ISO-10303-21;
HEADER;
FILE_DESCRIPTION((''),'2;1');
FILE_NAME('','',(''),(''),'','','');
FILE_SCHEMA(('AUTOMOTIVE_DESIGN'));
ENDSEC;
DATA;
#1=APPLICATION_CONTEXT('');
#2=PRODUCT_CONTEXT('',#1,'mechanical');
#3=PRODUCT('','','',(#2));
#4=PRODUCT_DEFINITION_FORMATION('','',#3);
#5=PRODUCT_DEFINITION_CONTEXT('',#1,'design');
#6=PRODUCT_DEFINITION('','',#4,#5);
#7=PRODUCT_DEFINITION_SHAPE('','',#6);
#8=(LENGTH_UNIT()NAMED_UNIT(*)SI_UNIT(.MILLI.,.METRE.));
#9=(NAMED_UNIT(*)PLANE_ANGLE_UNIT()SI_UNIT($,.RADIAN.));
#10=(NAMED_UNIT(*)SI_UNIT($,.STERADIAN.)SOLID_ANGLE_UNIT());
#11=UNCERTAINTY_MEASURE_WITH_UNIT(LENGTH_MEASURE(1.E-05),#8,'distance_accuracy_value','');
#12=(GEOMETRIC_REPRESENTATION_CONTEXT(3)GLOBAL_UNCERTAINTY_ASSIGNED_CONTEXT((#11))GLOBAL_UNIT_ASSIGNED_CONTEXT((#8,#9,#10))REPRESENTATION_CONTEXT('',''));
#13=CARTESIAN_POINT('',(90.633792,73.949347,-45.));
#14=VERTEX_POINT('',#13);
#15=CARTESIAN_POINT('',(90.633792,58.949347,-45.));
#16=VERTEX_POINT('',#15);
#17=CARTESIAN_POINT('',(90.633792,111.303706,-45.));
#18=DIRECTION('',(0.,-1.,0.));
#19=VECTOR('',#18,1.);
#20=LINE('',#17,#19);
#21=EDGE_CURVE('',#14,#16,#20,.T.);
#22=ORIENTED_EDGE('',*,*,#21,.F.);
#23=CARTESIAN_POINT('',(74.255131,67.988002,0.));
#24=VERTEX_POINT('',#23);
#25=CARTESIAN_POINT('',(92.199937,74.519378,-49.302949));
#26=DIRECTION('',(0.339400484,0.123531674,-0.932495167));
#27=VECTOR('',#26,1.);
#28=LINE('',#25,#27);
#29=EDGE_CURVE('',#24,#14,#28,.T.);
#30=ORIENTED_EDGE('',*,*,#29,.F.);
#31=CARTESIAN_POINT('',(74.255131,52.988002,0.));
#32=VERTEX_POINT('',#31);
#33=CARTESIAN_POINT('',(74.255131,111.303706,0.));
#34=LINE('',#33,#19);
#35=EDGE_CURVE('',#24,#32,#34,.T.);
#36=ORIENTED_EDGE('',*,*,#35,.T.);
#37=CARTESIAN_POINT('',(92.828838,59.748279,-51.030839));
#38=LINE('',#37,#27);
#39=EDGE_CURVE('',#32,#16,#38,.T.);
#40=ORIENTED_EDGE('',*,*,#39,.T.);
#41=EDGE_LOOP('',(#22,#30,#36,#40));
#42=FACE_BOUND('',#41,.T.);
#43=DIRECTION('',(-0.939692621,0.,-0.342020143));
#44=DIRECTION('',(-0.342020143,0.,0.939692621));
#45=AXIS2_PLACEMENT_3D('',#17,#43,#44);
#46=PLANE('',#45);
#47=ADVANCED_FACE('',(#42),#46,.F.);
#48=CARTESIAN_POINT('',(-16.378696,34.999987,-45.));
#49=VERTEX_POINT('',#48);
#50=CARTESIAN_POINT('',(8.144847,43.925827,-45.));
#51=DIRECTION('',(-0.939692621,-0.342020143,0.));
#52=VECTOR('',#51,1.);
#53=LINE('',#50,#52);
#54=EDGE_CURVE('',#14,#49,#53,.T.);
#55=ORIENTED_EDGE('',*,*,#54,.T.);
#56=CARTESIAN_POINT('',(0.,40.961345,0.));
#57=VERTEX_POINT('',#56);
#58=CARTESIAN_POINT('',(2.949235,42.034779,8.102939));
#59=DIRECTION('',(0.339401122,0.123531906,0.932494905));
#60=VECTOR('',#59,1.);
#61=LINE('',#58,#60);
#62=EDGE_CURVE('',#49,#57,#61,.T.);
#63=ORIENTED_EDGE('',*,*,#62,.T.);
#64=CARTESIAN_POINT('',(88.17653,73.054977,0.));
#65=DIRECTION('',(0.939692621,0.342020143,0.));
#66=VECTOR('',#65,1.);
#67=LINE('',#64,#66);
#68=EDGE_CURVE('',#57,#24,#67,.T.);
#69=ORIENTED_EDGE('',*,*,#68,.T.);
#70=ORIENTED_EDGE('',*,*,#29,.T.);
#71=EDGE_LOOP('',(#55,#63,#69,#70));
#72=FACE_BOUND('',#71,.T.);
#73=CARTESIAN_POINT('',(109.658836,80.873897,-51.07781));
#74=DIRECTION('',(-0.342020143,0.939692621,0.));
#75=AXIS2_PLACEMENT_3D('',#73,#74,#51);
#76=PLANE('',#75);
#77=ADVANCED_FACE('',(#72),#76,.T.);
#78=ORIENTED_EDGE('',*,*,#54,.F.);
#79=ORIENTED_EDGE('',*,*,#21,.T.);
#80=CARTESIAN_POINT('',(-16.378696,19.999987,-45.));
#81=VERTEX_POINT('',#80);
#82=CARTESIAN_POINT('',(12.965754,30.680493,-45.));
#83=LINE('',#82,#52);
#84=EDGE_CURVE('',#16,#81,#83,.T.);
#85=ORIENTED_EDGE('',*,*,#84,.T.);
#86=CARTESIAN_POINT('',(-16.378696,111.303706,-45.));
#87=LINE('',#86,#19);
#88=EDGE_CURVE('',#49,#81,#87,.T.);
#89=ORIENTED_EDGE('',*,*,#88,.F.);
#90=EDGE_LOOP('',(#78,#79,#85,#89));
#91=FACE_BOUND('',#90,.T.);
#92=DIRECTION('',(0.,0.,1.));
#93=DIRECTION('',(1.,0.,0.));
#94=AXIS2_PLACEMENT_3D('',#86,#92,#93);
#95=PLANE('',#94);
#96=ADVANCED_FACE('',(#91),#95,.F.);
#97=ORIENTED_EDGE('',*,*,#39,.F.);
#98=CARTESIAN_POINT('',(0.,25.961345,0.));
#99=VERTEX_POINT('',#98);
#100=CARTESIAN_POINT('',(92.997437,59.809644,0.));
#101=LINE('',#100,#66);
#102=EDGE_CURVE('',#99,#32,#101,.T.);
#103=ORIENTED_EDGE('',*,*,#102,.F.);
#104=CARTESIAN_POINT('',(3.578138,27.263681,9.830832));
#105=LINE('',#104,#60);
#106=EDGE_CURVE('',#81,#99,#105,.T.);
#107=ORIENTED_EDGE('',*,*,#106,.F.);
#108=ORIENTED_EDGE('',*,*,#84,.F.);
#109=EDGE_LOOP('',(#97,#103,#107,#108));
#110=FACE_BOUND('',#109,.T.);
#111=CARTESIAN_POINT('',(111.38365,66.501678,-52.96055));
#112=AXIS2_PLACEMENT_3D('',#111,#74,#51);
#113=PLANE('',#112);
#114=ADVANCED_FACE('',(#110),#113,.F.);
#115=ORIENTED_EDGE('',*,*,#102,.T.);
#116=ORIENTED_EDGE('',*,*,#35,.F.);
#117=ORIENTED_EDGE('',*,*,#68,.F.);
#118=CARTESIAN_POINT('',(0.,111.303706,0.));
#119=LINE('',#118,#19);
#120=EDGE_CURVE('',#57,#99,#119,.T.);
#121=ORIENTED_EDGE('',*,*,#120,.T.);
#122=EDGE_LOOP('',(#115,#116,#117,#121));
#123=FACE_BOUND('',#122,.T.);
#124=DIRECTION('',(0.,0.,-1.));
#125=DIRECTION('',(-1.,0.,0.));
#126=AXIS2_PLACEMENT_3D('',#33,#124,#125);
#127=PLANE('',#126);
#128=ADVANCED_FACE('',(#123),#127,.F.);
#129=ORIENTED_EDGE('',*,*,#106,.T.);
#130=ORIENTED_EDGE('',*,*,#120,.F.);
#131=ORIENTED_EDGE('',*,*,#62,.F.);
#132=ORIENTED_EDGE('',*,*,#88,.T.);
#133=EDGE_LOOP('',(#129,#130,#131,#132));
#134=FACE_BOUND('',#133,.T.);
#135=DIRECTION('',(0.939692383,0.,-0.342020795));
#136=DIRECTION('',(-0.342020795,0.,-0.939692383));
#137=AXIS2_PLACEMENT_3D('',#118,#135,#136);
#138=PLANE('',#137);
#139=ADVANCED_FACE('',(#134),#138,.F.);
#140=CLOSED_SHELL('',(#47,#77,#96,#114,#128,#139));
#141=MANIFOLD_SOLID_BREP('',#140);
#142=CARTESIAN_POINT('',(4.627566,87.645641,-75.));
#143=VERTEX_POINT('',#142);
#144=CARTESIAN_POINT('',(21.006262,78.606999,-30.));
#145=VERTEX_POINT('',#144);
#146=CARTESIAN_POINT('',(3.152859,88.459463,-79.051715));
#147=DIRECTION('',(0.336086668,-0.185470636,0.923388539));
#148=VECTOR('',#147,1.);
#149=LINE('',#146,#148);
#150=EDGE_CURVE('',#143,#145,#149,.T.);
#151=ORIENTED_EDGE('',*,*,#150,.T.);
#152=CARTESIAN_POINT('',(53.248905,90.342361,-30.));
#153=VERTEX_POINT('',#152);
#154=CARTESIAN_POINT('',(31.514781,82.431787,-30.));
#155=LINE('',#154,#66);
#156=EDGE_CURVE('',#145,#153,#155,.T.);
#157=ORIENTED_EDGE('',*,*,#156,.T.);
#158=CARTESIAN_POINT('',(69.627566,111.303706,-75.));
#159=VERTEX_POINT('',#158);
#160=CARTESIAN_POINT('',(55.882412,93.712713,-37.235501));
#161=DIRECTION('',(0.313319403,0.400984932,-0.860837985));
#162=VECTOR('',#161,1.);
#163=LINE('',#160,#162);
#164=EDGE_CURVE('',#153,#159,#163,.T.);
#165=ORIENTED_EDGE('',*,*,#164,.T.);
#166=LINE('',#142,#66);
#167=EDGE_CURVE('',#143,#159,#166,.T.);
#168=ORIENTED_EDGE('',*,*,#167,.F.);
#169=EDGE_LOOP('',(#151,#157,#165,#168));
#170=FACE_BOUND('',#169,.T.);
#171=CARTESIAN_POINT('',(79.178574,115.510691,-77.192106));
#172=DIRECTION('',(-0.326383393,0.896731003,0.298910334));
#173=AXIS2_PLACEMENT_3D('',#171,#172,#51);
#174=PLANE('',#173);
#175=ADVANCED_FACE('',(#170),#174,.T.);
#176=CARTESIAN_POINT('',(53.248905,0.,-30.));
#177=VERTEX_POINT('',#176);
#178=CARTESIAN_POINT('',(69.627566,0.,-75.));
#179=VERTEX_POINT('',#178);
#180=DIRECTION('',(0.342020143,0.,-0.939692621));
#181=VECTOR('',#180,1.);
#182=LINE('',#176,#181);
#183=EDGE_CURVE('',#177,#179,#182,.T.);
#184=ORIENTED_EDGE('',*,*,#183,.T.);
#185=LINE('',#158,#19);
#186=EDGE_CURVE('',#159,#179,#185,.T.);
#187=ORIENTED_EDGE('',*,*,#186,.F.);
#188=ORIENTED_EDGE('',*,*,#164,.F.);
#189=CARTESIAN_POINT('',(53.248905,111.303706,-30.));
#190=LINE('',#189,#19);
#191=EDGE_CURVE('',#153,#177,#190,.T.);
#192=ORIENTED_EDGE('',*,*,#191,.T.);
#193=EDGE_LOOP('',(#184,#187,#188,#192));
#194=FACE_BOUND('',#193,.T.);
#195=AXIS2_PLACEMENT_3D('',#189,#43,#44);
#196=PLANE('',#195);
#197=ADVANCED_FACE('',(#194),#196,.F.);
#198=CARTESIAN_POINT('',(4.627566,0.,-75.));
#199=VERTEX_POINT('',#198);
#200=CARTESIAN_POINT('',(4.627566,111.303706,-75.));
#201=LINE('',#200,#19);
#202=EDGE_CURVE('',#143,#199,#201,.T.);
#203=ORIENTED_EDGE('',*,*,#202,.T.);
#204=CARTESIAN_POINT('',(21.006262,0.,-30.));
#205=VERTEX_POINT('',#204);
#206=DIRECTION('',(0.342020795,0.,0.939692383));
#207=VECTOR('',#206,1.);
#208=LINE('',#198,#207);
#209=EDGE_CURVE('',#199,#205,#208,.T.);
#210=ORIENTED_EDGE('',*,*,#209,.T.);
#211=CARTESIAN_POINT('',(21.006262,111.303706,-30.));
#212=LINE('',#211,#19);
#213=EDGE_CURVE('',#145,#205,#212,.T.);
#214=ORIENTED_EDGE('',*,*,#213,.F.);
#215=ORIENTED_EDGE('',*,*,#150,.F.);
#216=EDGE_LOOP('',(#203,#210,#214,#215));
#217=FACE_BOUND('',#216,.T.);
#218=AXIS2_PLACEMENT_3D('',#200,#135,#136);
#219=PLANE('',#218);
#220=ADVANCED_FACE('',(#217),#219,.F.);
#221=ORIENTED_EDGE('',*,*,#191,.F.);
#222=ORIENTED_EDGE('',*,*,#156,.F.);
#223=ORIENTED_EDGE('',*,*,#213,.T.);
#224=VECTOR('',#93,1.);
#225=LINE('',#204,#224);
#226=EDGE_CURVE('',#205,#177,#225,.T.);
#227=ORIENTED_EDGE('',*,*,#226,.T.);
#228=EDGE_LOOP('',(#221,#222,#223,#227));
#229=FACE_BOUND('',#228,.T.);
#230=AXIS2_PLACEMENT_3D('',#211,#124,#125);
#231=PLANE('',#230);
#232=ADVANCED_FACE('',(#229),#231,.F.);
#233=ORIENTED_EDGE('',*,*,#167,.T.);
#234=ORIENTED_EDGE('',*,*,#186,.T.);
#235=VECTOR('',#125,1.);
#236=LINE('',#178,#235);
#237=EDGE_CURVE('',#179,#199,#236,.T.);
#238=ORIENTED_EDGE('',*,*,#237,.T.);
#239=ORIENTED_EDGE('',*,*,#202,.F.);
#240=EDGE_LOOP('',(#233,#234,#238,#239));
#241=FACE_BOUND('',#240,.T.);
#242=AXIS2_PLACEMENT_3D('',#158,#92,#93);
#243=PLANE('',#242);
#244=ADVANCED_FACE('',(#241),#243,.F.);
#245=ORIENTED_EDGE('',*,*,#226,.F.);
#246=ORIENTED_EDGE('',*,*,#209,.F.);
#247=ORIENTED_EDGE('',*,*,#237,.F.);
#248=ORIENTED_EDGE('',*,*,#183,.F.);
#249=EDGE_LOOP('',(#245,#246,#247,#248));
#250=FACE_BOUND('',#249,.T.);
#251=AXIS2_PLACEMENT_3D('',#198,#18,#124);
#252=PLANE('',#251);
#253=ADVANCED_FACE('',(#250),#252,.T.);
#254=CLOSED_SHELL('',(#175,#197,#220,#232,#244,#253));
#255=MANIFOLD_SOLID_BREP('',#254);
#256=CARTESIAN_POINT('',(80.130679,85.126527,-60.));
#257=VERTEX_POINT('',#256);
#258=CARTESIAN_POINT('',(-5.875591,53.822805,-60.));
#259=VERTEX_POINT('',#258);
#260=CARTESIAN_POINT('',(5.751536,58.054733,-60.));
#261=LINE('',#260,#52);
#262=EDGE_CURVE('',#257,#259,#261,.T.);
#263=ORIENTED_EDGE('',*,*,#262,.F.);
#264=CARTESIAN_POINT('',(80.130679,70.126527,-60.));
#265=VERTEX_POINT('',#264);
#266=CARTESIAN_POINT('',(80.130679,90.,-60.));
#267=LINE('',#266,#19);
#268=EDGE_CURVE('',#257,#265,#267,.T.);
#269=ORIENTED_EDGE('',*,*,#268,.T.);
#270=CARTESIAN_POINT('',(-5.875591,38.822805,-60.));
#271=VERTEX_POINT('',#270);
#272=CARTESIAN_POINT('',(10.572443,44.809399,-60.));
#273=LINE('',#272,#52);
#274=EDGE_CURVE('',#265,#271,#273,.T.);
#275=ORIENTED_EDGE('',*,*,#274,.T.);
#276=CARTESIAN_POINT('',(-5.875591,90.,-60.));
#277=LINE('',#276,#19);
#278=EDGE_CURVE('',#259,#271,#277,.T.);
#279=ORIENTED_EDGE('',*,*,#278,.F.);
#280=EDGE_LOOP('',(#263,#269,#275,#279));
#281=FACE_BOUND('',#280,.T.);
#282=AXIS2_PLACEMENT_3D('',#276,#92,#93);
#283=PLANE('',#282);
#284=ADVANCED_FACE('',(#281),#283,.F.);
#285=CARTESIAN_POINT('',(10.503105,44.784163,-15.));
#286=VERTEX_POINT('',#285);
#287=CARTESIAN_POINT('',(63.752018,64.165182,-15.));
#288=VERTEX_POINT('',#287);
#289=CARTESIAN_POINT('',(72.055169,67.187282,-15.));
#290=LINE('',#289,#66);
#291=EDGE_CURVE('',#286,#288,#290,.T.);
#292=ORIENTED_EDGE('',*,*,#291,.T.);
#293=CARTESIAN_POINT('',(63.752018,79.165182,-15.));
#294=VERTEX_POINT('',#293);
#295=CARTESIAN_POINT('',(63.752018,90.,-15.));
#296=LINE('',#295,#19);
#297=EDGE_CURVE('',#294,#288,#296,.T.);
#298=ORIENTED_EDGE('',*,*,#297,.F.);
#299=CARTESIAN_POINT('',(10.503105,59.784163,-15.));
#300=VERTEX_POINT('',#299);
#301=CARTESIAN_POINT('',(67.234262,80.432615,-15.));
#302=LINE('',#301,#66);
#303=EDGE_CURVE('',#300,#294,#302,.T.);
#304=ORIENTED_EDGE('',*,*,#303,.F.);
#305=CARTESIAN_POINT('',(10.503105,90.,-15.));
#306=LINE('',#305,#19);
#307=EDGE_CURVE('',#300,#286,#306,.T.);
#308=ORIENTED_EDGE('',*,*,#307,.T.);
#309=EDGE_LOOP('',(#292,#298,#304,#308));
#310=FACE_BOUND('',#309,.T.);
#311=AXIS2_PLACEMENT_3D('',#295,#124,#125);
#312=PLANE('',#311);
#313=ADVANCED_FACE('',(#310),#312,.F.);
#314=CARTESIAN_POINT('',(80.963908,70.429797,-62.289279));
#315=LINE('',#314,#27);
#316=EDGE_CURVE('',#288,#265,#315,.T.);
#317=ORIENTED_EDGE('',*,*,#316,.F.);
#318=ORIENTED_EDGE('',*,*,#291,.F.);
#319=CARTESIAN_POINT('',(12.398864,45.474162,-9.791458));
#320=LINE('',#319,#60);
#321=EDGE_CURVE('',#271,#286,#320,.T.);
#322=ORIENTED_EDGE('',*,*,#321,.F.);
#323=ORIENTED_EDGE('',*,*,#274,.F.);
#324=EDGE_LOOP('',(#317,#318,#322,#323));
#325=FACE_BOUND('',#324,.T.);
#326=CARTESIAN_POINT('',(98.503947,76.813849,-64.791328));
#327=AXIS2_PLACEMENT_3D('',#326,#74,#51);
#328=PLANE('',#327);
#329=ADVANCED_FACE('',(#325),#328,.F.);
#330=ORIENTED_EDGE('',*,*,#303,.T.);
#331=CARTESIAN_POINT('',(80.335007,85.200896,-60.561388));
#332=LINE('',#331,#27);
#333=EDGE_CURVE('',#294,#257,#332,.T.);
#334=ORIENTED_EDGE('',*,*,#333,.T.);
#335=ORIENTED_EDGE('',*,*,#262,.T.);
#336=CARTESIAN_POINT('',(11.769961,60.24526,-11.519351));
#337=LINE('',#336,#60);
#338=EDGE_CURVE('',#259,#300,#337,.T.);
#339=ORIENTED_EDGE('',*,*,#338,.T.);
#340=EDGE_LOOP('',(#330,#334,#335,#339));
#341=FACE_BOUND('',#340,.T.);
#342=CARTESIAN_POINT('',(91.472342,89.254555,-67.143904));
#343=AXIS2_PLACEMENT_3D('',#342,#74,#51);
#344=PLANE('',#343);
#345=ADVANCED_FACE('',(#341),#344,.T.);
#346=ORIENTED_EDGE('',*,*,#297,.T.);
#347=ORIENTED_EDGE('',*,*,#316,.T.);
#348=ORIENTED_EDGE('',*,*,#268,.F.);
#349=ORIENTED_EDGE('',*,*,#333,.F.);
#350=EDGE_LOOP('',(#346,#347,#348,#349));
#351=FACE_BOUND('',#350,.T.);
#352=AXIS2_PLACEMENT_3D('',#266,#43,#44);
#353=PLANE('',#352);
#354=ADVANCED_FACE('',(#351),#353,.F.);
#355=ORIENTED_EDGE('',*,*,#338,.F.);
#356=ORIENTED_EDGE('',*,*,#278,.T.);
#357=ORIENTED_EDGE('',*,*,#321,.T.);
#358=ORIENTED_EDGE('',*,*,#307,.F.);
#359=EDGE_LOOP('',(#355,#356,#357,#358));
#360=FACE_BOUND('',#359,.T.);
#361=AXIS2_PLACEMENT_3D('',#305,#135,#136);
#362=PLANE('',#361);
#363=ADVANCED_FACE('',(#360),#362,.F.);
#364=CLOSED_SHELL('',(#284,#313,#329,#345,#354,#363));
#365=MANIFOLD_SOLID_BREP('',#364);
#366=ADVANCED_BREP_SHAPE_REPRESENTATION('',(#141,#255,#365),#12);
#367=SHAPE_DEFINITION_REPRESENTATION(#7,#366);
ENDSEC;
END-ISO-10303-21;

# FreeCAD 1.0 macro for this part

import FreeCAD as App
import Part
import Sketcher

V = App.Vector
Q = App.Units.Quantity


def add_polygon(sketch, points):
    """Adds a closed chain of lines whose ends are joined by coincident constraints."""
    first, n = sketch.GeometryCount, len(points)
    for a, b in zip(points, points[1:] + points[:1]):
        sketch.addGeometry(Part.LineSegment(App.Vector(*a, 0), App.Vector(*b, 0)), False)
    for i in range(n):
        sketch.addConstraint(Sketcher.Constraint("Coincident", first + i, 2, first + (i + 1) % n, 1))

doc = App.newDocument("Part")
body = doc.addObject("PartDesign::Body", "Body")

# Sketch on XZ plane
sketch1 = doc.addObject("Sketcher::SketchObject", "Sketch")
body.addObject(sketch1)
sketch1.AttachmentSupport = (doc.XZ_Plane, [""])
sketch1.MapMode = "FlatFace"
add_polygon(sketch1, [(21, -30), (53, -30), (70, -75), (5, -75)])  # lines 0-3
sketch1.addConstraint([
    Sketcher.Constraint("Horizontal", 0),
    Sketcher.Constraint("Horizontal", 2),
    Sketcher.Constraint("DistanceX", 2, 2, 2, 1, Q("65 mm")),
    Sketcher.Constraint("Angle", 1, Q("-70 deg")),
    Sketcher.Constraint("DistanceY", 0, 2, -1, 1, Q("30 mm")),
    Sketcher.Constraint("DistanceY", 1, 2, -1, 1, Q("75 mm")),
    Sketcher.Constraint("Distance", 3, Q("47.888012 mm")),
    Sketcher.Constraint("DistanceX", -1, 1, 3, 2, Q("21.006262 mm")),
])
pad1 = doc.addObject("PartDesign::Pad", "Pad")
body.addObject(pad1)
pad1.Profile = sketch1
pad1.Length = 111.303706
pad1.Reversed = True

# Sketch on XY plane
sketch2 = doc.addObject("Sketcher::SketchObject", "Sketch001")
body.addObject(sketch2)
sketch2.AttachmentSupport = (doc.XY_Plane, [""])
sketch2.MapMode = "FlatFace"
sketch2.AttachmentOffset = App.Placement(V(0, 0, -30), App.Rotation())
add_polygon(sketch2, [(70, 111), (5, 111), (5, 88)])  # lines 0-2
sketch2.addConstraint([
    Sketcher.Constraint("Horizontal", 0),
    Sketcher.Constraint("Vertical", 1),
    Sketcher.Constraint("DistanceX", 0, 2, 0, 1, Q("65 mm")),
    Sketcher.Constraint("Angle", 2, Q("20 deg")),
    Sketcher.Constraint("DistanceY", -1, 1, 1, 2, Q("87.645641 mm")),
    Sketcher.Constraint("DistanceX", -1, 1, 0, 2, Q("4.627566 mm")),
])
pocket1 = doc.addObject("PartDesign::Pocket", "Pocket")
body.addObject(pocket1)
pocket1.Profile = sketch2
pocket1.Type = "ThroughAll"

# Sketch on an angled plane
sketch3 = doc.addObject("Sketcher::SketchObject", "Sketch002")
body.addObject(sketch3)
sketch3.Placement = App.Placement(V(-17.842051, 49.020632, 16.340211), App.Rotation(V(0.945237473, 0.309634474, 0.103211491), V(0, -0.316227765, 0.948683298), V(0.326383393, -0.896731004, -0.298910334), "ZXY"))
add_polygon(sketch3, [(9, -53), (9, -110), (103, -110), (103, -53)])  # lines 0-3
sketch3.addConstraint([
    Sketcher.Constraint("Vertical", 0),
    Sketcher.Constraint("Horizontal", 1),
    Sketcher.Constraint("Vertical", 2),
    Sketcher.Constraint("Horizontal", 3),
    Sketcher.Constraint("DistanceX", 1, 1, 1, 2, Q("93.704771 mm")),
    Sketcher.Constraint("DistanceY", 0, 2, 0, 1, Q("56.784227 mm")),
    Sketcher.Constraint("DistanceY", 0, 2, -1, 1, Q("109.75855 mm")),
    Sketcher.Constraint("DistanceX", -1, 1, 0, 2, Q("8.936764 mm")),
])
pocket2 = doc.addObject("PartDesign::Pocket", "Pocket001")
body.addObject(pocket2)
pocket2.Profile = sketch3
pocket2.Length = 111.303706
body2 = doc.addObject("PartDesign::Body", "Body001")

# Sketch on XZ plane
sketch4 = doc.addObject("Sketcher::SketchObject", "Sketch003")
body2.addObject(sketch4)
sketch4.AttachmentSupport = (doc.getObject("XZ_Plane001"), [""])
sketch4.MapMode = "FlatFace"
add_polygon(sketch4, [(91, -45), (-16, -45), (0, 0), (74, 0)])  # lines 0-3
sketch4.addConstraint([
    Sketcher.Constraint("Horizontal", 0),
    Sketcher.Constraint("Horizontal", 2),
    Sketcher.Constraint("Coincident", 1, 2, -1, 1),
    Sketcher.Constraint("Angle", 3, Q("-70 deg")),
    Sketcher.Constraint("DistanceY", 0, 2, -1, 1, Q("45 mm")),
    Sketcher.Constraint("DistanceX", 2, 1, 2, 2, Q("74.255131 mm")),
    Sketcher.Constraint("Distance", 1, Q("47.888012 mm")),
])
pad2 = doc.addObject("PartDesign::Pad", "Pad001")
body2.addObject(pad2)
pad2.Profile = sketch4
pad2.Length = 111.303706
pad2.Reversed = True

# Sketch on an angled plane
sketch5 = doc.addObject("Sketcher::SketchObject", "Sketch004")
body2.addObject(sketch5)
sketch5.Placement = App.Placement(V(-8.343815, 22.924444, 0), App.Rotation(V(-0.939692621, -0.342020143, 0), V(0, 0, 1), V(-0.342020143, 0.939692621, 0), "ZXY"))
add_polygon(sketch5, [(-127, 4), (-127, -53), (22, -53), (22, 4)])  # lines 0-3
sketch5.addConstraint([
    Sketcher.Constraint("Vertical", 0),
    Sketcher.Constraint("Horizontal", 1),
    Sketcher.Constraint("Vertical", 2),
    Sketcher.Constraint("Horizontal", 3),
    Sketcher.Constraint("DistanceX", 1, 1, 1, 2, Q("148.971749 mm")),
    Sketcher.Constraint("DistanceY", 0, 2, 0, 1, Q("56.952865 mm")),
    Sketcher.Constraint("DistanceY", 0, 2, -1, 1, Q("52.96055 mm")),
    Sketcher.Constraint("DistanceX", 0, 2, -1, 1, Q("127.411307 mm")),
])
pocket3 = doc.addObject("PartDesign::Pocket", "Pocket002")
body2.addObject(pocket3)
pocket3.Profile = sketch5
pocket3.Length = 60

# Sketch on an angled plane
sketch6 = doc.addObject("Sketcher::SketchObject", "Sketch005")
body2.addObject(sketch6)
sketch6.Placement = App.Placement(V(-13.164722, 36.169778, 0), App.Rotation(V(-0.939692621, -0.342020143, 0), V(0, 0, 1), V(-0.342020143, 0.939692621, 0), "ZXY"))
add_polygon(sketch6, [(-131, 7), (-131, -51), (19, -51), (19, 7)])  # lines 0-3
sketch6.addConstraint([
    Sketcher.Constraint("Vertical", 0),
    Sketcher.Constraint("Horizontal", 1),
    Sketcher.Constraint("Vertical", 2),
    Sketcher.Constraint("Horizontal", 3),
    Sketcher.Constraint("DistanceY", 0, 2, 0, 1, Q("58.364919 mm")),
    Sketcher.Constraint("DistanceX", 0, 2, -1, 1, Q("130.706101 mm")),
    Sketcher.Constraint("DistanceX", 1, 1, 1, 2, Q("149.677776 mm")),
    Sketcher.Constraint("DistanceY", 0, 2, -1, 1, Q("51.07781 mm")),
])
pocket4 = doc.addObject("PartDesign::Pocket", "Pocket003")
body2.addObject(pocket4)
pocket4.Profile = sketch6
pocket4.Length = 80
pocket4.Reversed = True
body3 = doc.addObject("PartDesign::Body", "Body002")

# Sketch on XZ plane
sketch7 = doc.addObject("Sketcher::SketchObject", "Sketch006")
body3.addObject(sketch7)
sketch7.AttachmentSupport = (doc.getObject("XZ_Plane002"), [""])
sketch7.MapMode = "FlatFace"
add_polygon(sketch7, [(80, -60), (-6, -60), (11, -15), (64, -15)])  # lines 0-3
sketch7.addConstraint([
    Sketcher.Constraint("Horizontal", 0),
    Sketcher.Constraint("Horizontal", 2),
    Sketcher.Constraint("Angle", 3, Q("-70 deg")),
    Sketcher.Constraint("DistanceY", 0, 2, -1, 1, Q("60 mm")),
    Sketcher.Constraint("DistanceY", 1, 2, -1, 1, Q("15 mm")),
    Sketcher.Constraint("DistanceX", 0, 2, 0, 1, Q("86.006269 mm")),
    Sketcher.Constraint("Distance", 1, Q("47.888012 mm")),
    Sketcher.Constraint("DistanceX", 0, 2, -1, 1, Q("5.875591 mm")),
])
pad3 = doc.addObject("PartDesign::Pad", "Pad002")
body3.addObject(pad3)
pad3.Profile = sketch7
pad3.Length = 90
pad3.Reversed = True

# Sketch on an angled plane
sketch8 = doc.addObject("Sketcher::SketchObject", "Sketch007")
body3.addObject(sketch8)
sketch8.Placement = App.Placement(V(-17.98563, 49.415111, 0), App.Rotation(V(-0.939692621, -0.342020143, 0), V(0, 0, 1), V(-0.342020143, 0.939692621, 0), "ZXY"))
add_polygon(sketch8, [(-116, -14), (-116, -67), (-5, -67), (-5, -14)])  # lines 0-3
sketch8.addConstraint([
    Sketcher.Constraint("Vertical", 0),
    Sketcher.Constraint("Horizontal", 1),
    Sketcher.Constraint("Vertical", 2),
    Sketcher.Constraint("Horizontal", 3),
    Sketcher.Constraint("DistanceX", 1, 1, 1, 2, Q("111.854253 mm")),
    Sketcher.Constraint("DistanceY", 0, 2, 0, 1, Q("53.467616 mm")),
    Sketcher.Constraint("DistanceX", 0, 2, -1, 1, Q("116.48274 mm")),
    Sketcher.Constraint("DistanceY", 0, 2, -1, 1, Q("67.143904 mm")),
])
pocket5 = doc.addObject("PartDesign::Pocket", "Pocket004")
body3.addObject(pocket5)
pocket5.Profile = sketch8
pocket5.Length = 40
pocket5.Reversed = True

# Sketch on an angled plane
sketch9 = doc.addObject("Sketcher::SketchObject", "Sketch008")
body3.addObject(sketch9)
sketch9.Placement = App.Placement(V(-13.164722, 36.169778, 0), App.Rotation(V(-0.939692621, -0.342020143, 0), V(0, 0, 1), V(-0.342020143, 0.939692621, 0), "ZXY"))
add_polygon(sketch9, [(-119, -12), (-119, -65), (8, -65), (8, -12)])  # lines 0-3
sketch9.addConstraint([
    Sketcher.Constraint("Vertical", 0),
    Sketcher.Constraint("Horizontal", 1),
    Sketcher.Constraint("Vertical", 2),
    Sketcher.Constraint("Horizontal", 3),
    Sketcher.Constraint("DistanceX", 1, 1, 1, 2, Q("126.852413 mm")),
    Sketcher.Constraint("DistanceY", 0, 2, 0, 1, Q("52.398264 mm")),
    Sketcher.Constraint("DistanceY", 0, 2, -1, 1, Q("64.791329 mm")),
    Sketcher.Constraint("DistanceX", 0, 2, -1, 1, Q("118.835316 mm")),
])
pocket6 = doc.addObject("PartDesign::Pocket", "Pocket005")
body3.addObject(pocket6)
pocket6.Profile = sketch9
pocket6.Length = 70

doc.recompute()
